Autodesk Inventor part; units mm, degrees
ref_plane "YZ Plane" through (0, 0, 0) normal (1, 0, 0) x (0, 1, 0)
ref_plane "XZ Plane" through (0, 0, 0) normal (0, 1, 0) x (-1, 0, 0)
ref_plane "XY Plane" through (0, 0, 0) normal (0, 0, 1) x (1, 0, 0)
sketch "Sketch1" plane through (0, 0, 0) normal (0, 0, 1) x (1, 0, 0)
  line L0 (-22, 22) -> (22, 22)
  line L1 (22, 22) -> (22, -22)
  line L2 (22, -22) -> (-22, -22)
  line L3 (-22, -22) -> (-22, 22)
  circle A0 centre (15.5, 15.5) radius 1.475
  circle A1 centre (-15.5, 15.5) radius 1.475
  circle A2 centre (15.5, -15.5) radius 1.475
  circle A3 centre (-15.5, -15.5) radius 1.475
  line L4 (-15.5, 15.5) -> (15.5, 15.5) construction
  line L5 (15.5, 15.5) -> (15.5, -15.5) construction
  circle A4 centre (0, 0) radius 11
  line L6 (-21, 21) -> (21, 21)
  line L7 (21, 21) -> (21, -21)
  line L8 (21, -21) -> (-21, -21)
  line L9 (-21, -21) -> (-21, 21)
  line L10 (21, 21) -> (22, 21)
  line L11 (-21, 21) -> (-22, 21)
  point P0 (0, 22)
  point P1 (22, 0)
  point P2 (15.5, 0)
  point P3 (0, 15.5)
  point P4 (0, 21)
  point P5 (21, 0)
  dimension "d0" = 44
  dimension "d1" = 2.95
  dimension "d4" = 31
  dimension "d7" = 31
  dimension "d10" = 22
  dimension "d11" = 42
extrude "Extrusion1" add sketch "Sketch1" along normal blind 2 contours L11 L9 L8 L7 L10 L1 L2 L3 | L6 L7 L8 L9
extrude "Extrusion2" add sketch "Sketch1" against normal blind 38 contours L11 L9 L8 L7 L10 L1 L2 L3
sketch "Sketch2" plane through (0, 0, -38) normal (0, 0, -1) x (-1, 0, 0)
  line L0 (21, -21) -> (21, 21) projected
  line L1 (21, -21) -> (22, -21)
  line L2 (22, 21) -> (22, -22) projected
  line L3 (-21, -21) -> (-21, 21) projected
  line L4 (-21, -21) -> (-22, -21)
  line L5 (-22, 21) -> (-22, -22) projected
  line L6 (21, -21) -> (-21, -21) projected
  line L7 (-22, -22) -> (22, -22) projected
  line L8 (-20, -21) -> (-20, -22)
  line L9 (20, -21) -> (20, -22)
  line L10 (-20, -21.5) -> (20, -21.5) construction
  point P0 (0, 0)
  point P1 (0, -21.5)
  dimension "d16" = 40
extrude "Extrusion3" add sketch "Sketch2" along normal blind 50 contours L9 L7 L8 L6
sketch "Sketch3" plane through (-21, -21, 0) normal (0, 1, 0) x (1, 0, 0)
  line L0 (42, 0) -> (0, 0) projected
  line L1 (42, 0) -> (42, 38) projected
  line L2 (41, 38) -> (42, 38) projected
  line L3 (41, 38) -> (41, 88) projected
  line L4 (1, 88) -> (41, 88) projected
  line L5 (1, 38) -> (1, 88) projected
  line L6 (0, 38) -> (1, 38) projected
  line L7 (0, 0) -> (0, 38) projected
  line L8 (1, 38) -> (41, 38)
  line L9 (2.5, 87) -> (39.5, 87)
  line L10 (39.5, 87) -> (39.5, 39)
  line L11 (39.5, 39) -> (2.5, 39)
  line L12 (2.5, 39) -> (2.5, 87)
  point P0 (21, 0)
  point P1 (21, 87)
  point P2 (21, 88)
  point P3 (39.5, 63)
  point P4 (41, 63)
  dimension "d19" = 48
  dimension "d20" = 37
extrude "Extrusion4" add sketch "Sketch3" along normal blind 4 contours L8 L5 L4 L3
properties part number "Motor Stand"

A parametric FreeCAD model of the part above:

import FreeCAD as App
import Part
import Sketcher
from FreeCAD import Vector

doc = App.newDocument("Part")
body = doc.addObject("PartDesign::Body", "Body")

sketch1 = doc.addObject("Sketcher::SketchObject", "Sketch")
body.addObject(sketch1)
sketch1.AttachmentSupport = (doc.XY_Plane, [""])
sketch1.MapMode = "FlatFace"
sketch1.addGeometry([
    Part.LineSegment(Vector(-22, 21, 0), Vector(-22, -22, 0)),
    Part.LineSegment(Vector(-22, -22, 0), Vector(22, -22, 0)),
    Part.LineSegment(Vector(22, -22, 0), Vector(22, 21, 0)),
    Part.LineSegment(Vector(22, 21, 0), Vector(-22, 21, 0)),
    Part.Circle(Vector(-15.5, 15.5, 0), Vector(0, 0, 1), 1.5),
    Part.Circle(Vector(0, 0, 0), Vector(0, 0, 1), 11),
    Part.Circle(Vector(15.5, 15.5, 0), Vector(0, 0, 1), 1.5),
    Part.Circle(Vector(-15.5, -15.5, 0), Vector(0, 0, 1), 1.5),
    Part.Circle(Vector(15.5, -15.5, 0), Vector(0, 0, 1), 1.5),
], False)
sketch1.addConstraint([
    Sketcher.Constraint("Coincident", 0, 2, 1, 1),
    Sketcher.Constraint("Coincident", 1, 2, 2, 1),
    Sketcher.Constraint("Coincident", 2, 2, 3, 1),
    Sketcher.Constraint("Coincident", 3, 2, 0, 1),
    Sketcher.Constraint("Vertical", 0),
    Sketcher.Constraint("Horizontal", 1),
    Sketcher.Constraint("Vertical", 2),
    Sketcher.Constraint("Horizontal", 3),
    Sketcher.Constraint("Coincident", 5, 3, -1, 1),
    Sketcher.Constraint("Equal", 4, 6),
    Sketcher.Constraint("Equal", 6, 7),
    Sketcher.Constraint("Equal", 7, 8),
    Sketcher.Constraint("Symmetric", 6, 3, 7, 3, -1, 1),
    Sketcher.Constraint("Symmetric", 4, 3, 8, 3, -1, 1),
    Sketcher.Constraint("Symmetric", 4, 3, 6, 3, -2),
    Sketcher.Constraint("Diameter", 5, 22.0),
    Sketcher.Constraint("Diameter", 4, 2.95),
    Sketcher.Constraint("DistanceX", 1, 1, 1, 2, 44.0),
    Sketcher.Constraint("DistanceX", 0, 2, -1, 1, 22.0),
    Sketcher.Constraint("DistanceY", 0, 2, -1, 1, 22.0),
    Sketcher.Constraint("DistanceX", 4, 3, 6, 3, 31.0),
    Sketcher.Constraint("DistanceY", 7, 3, 4, 3, 31.0),
    Sketcher.Constraint("DistanceY", 0, 2, 0, 1, 43.0),
])
pad1 = doc.addObject("PartDesign::Pad", "Pad")
body.addObject(pad1)
pad1.Profile = sketch1
pad1.Length = 2

sketch2 = doc.addObject("Sketcher::SketchObject", "Sketch001")
body.addObject(sketch2)
sketch2.AttachmentSupport = (doc.XY_Plane, [""])
sketch2.MapMode = "FlatFace"
sketch2.addGeometry([
    Part.LineSegment(Vector(-21, 21, 0), Vector(-22, 21, 0)),
    Part.LineSegment(Vector(-22, 21, 0), Vector(-22, -22, 0)),
    Part.LineSegment(Vector(-22, -22, 0), Vector(22, -22, 0)),
    Part.LineSegment(Vector(22, -22, 0), Vector(22, 21, 0)),
    Part.LineSegment(Vector(22, 21, 0), Vector(21, 21, 0)),
    Part.LineSegment(Vector(21, 21, 0), Vector(21, -21, 0)),
    Part.LineSegment(Vector(21, -21, 0), Vector(-21, -21, 0)),
    Part.LineSegment(Vector(-21, -21, 0), Vector(-21, 21, 0)),
], False)
sketch2.addConstraint([
    Sketcher.Constraint("Coincident", 0, 2, 1, 1),
    Sketcher.Constraint("Coincident", 1, 2, 2, 1),
    Sketcher.Constraint("Coincident", 2, 2, 3, 1),
    Sketcher.Constraint("Coincident", 3, 2, 4, 1),
    Sketcher.Constraint("Coincident", 4, 2, 5, 1),
    Sketcher.Constraint("Coincident", 5, 2, 6, 1),
    Sketcher.Constraint("Coincident", 6, 2, 7, 1),
    Sketcher.Constraint("Coincident", 7, 2, 0, 1),
    Sketcher.Constraint("Horizontal", 0),
    Sketcher.Constraint("Vertical", 1),
    Sketcher.Constraint("Horizontal", 2),
    Sketcher.Constraint("Vertical", 3),
    Sketcher.Constraint("Horizontal", 4),
    Sketcher.Constraint("Vertical", 5),
    Sketcher.Constraint("Horizontal", 6),
    Sketcher.Constraint("Vertical", 7),
    Sketcher.Constraint("Symmetric", 4, 2, 6, 2, -1, 1),
    Sketcher.Constraint("Symmetric", 0, 2, 3, 2, -2),
    Sketcher.Constraint("Equal", 6, 5),
    Sketcher.Constraint("DistanceX", 2, 1, 2, 2, 44.0),
    Sketcher.Constraint("DistanceX", 6, 2, 6, 1, 42.0),
    Sketcher.Constraint("DistanceY", 1, 2, -1, 1, 22.0),
])
pad2 = doc.addObject("PartDesign::Pad", "Pad001")
body.addObject(pad2)
pad2.Profile = sketch2
pad2.Length = 38
pad2.Reversed = True

sketch3 = doc.addObject("Sketcher::SketchObject", "Sketch002")
body.addObject(sketch3)
sketch3.AttachmentSupport = (doc.XY_Plane, [""])
sketch3.MapMode = "FlatFace"
sketch3.AttachmentOffset = App.Placement(Vector(0, 0, -38), App.Rotation())
sketch3.addGeometry([
    Part.LineSegment(Vector(-20, -22, 0), Vector(-20, -21, 0)),
    Part.LineSegment(Vector(-20, -21, 0), Vector(20, -21, 0)),
    Part.LineSegment(Vector(20, -21, 0), Vector(20, -22, 0)),
    Part.LineSegment(Vector(20, -22, 0), Vector(-20, -22, 0)),
], False)
sketch3.addConstraint([
    Sketcher.Constraint("Coincident", 0, 2, 1, 1),
    Sketcher.Constraint("Coincident", 1, 2, 2, 1),
    Sketcher.Constraint("Coincident", 2, 2, 3, 1),
    Sketcher.Constraint("Coincident", 3, 2, 0, 1),
    Sketcher.Constraint("Vertical", 0),
    Sketcher.Constraint("Horizontal", 1),
    Sketcher.Constraint("Vertical", 2),
    Sketcher.Constraint("Horizontal", 3),
    Sketcher.Constraint("DistanceX", 1, 1, 1, 2, 40.0),
    Sketcher.Constraint("DistanceY", 0, 1, 0, 2, 1.0),
    Sketcher.Constraint("DistanceX", 0, 2, -1, 1, 20.0),
    Sketcher.Constraint("DistanceY", 0, 2, -1, 1, 21.0),
])
pad3 = doc.addObject("PartDesign::Pad", "Pad002")
body.addObject(pad3)
pad3.Profile = sketch3
pad3.Length = 50
pad3.Reversed = True

sketch4 = doc.addObject("Sketcher::SketchObject", "Sketch003")
body.addObject(sketch4)
sketch4.AttachmentSupport = (doc.XZ_Plane, [""])
sketch4.MapMode = "FlatFace"
sketch4.AttachmentOffset = App.Placement(Vector(0, 0, 21), App.Rotation())
sketch4.addGeometry([
    Part.LineSegment(Vector(-20, -38, 0), Vector(20, -38, 0)),
    Part.LineSegment(Vector(20, -38, 0), Vector(20, -88, 0)),
    Part.LineSegment(Vector(20, -88, 0), Vector(-20, -88, 0)),
    Part.LineSegment(Vector(-20, -88, 0), Vector(-20, -38, 0)),
    Part.LineSegment(Vector(-18, -39, 0), Vector(-18, -87, 0)),
    Part.LineSegment(Vector(-18, -87, 0), Vector(18, -87, 0)),
    Part.LineSegment(Vector(18, -87, 0), Vector(18, -39, 0)),
    Part.LineSegment(Vector(18, -39, 0), Vector(-18, -39, 0)),
], False)
sketch4.addConstraint([
    Sketcher.Constraint("Coincident", 0, 2, 1, 1),
    Sketcher.Constraint("Coincident", 1, 2, 2, 1),
    Sketcher.Constraint("Coincident", 2, 2, 3, 1),
    Sketcher.Constraint("Coincident", 3, 2, 0, 1),
    Sketcher.Constraint("Coincident", 4, 2, 5, 1),
    Sketcher.Constraint("Coincident", 5, 2, 6, 1),
    Sketcher.Constraint("Coincident", 6, 2, 7, 1),
    Sketcher.Constraint("Coincident", 7, 2, 4, 1),
    Sketcher.Constraint("Horizontal", 0),
    Sketcher.Constraint("Vertical", 1),
    Sketcher.Constraint("Horizontal", 2),
    Sketcher.Constraint("Vertical", 3),
    Sketcher.Constraint("Vertical", 4),
    Sketcher.Constraint("Horizontal", 5),
    Sketcher.Constraint("Vertical", 6),
    Sketcher.Constraint("Horizontal", 7),
    Sketcher.Constraint("DistanceX", 5, 1, 5, 2, 37.0),
    Sketcher.Constraint("DistanceY", 4, 2, 4, 1, 48.0),
    Sketcher.Constraint("DistanceX", 0, 1, 0, 2, 40.0),
    Sketcher.Constraint("DistanceY", 1, 2, 1, 1, 50.0),
    Sketcher.Constraint("DistanceX", -1, 1, 0, 2, 20.0),
    Sketcher.Constraint("DistanceY", 0, 2, -1, 1, 38.0),
    Sketcher.Constraint("DistanceY", 4, 2, -1, 1, 87.0),
    Sketcher.Constraint("DistanceX", 4, 2, -1, 1, 18.5),
])
pad4 = doc.addObject("PartDesign::Pad", "Pad003")
body.addObject(pad4)
pad4.Profile = sketch4
pad4.Length = 4
pad4.Reversed = True

doc.recompute()
